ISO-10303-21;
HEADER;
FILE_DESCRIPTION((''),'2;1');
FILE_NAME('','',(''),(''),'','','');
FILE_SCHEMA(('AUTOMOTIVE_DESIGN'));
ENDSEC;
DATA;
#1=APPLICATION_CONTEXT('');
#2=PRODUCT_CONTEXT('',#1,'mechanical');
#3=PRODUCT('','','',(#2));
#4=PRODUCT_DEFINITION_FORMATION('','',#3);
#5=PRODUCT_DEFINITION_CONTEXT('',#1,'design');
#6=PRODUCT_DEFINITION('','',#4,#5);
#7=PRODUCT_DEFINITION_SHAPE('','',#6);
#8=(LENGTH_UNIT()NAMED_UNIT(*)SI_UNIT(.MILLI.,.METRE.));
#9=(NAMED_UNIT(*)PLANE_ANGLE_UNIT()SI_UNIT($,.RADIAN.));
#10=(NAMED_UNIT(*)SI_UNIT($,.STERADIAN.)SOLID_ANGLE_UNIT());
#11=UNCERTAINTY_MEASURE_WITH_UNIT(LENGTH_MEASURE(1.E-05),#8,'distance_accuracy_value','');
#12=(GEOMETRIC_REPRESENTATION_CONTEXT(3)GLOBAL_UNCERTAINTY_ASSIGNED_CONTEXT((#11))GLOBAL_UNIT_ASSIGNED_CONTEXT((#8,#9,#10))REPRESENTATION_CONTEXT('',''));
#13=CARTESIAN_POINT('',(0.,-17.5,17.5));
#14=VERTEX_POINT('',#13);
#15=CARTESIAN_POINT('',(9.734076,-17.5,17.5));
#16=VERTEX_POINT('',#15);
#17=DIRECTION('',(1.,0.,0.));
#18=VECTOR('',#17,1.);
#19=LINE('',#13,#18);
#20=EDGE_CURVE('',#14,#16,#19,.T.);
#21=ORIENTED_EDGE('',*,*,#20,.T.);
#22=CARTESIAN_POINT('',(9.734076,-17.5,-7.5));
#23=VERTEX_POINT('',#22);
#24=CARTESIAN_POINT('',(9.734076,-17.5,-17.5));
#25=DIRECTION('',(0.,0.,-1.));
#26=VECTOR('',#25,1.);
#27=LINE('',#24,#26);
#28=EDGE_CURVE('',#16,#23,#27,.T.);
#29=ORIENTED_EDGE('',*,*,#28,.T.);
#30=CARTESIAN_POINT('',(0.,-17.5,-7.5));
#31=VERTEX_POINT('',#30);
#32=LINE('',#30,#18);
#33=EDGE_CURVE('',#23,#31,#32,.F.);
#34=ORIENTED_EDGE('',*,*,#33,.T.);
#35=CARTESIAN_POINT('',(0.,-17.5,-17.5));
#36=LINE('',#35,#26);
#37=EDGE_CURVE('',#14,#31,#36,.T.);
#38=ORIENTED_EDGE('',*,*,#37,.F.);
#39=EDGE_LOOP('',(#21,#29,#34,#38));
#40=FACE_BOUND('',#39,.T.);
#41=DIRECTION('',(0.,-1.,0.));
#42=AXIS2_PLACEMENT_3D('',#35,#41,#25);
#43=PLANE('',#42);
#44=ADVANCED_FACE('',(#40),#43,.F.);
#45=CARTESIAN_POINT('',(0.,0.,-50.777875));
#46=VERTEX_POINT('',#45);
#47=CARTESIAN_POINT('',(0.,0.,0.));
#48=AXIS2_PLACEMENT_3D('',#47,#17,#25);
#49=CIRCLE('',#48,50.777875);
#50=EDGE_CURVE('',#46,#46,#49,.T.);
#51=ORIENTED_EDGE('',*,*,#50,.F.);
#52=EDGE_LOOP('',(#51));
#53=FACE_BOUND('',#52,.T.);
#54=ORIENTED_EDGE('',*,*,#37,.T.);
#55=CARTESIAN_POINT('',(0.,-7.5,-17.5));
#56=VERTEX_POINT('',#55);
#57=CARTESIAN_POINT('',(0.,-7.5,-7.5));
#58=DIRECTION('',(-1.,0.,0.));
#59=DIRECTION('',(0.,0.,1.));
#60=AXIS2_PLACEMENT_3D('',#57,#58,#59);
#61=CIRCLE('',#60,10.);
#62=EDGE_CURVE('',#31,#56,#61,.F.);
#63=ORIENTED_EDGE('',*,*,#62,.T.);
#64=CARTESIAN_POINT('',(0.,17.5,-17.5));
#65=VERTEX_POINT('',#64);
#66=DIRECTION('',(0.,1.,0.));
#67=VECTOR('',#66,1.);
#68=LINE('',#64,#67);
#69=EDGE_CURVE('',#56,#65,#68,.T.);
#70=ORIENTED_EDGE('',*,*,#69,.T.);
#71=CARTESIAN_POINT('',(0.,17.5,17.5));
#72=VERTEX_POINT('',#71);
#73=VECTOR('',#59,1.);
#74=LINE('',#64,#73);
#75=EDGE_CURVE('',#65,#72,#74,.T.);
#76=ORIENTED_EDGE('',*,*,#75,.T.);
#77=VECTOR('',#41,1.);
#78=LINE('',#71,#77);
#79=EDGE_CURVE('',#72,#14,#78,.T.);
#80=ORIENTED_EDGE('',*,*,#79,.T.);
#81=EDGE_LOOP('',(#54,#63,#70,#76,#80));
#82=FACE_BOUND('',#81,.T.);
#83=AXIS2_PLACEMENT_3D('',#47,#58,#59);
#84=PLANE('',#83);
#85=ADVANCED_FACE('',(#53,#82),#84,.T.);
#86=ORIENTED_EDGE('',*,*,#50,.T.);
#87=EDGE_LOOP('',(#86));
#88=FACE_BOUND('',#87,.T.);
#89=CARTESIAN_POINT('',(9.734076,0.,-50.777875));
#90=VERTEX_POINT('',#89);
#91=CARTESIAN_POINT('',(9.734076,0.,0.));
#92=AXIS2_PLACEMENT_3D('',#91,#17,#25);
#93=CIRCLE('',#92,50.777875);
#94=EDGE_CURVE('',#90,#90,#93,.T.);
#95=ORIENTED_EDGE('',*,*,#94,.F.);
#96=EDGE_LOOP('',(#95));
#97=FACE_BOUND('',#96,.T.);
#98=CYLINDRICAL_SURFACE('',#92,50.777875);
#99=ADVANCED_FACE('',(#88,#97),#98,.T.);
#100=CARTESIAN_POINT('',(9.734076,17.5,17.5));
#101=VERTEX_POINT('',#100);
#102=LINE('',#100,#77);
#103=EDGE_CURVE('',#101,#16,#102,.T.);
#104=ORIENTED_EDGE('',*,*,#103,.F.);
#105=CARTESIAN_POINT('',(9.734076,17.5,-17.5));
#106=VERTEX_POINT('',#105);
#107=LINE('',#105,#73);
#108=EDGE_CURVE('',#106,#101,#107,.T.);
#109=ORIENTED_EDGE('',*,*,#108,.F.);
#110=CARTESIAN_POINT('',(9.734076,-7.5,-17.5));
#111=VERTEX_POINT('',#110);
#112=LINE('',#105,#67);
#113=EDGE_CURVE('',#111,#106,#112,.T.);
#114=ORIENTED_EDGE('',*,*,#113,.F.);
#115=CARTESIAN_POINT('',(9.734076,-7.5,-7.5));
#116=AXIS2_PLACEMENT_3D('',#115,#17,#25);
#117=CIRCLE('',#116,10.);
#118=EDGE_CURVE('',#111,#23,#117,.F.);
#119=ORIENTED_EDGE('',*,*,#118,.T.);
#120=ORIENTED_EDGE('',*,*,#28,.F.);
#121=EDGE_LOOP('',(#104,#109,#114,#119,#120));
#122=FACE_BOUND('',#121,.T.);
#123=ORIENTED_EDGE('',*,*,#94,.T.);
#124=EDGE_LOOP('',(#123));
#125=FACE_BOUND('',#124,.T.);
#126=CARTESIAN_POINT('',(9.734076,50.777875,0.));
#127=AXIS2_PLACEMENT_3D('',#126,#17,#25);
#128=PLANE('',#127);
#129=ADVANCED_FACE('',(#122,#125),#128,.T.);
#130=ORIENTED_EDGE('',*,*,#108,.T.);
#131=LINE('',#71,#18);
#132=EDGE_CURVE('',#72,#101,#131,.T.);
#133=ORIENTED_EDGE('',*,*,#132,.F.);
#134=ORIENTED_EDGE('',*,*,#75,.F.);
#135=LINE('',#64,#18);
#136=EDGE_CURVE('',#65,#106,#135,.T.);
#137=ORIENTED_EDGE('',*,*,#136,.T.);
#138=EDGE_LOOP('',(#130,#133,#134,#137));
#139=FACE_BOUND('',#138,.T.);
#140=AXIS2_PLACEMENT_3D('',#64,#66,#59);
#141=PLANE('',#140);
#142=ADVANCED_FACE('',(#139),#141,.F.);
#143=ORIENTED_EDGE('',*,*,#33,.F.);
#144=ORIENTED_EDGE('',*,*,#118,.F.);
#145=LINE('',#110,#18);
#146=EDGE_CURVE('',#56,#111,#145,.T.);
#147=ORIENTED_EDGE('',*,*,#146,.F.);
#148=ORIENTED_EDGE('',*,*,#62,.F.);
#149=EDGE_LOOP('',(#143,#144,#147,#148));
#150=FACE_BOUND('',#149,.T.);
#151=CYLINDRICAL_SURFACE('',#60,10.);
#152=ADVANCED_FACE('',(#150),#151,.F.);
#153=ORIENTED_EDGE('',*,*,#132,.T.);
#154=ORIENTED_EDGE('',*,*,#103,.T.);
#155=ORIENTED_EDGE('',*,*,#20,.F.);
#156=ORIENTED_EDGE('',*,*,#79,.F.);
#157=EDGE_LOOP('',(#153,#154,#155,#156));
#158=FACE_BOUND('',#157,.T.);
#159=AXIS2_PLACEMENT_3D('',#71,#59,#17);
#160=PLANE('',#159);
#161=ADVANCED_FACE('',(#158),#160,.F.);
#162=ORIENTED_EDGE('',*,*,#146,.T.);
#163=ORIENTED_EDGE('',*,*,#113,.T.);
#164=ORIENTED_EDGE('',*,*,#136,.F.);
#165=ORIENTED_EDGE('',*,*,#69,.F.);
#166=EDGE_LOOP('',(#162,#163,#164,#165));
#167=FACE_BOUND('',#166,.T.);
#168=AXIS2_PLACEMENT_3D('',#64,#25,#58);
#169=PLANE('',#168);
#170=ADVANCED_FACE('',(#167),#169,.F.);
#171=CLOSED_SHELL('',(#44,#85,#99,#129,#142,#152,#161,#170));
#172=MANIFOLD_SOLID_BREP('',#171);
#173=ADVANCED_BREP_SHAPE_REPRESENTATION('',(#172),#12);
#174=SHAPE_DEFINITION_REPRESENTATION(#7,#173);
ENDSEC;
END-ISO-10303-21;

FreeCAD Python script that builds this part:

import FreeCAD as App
import Part
import Sketcher

V = App.Vector
Q = App.Units.Quantity


def edges_at(feature, points):
    """Names of the edges that pass closest to the given points."""
    edges = feature.Shape.Edges
    near = lambda p: min(range(len(edges)), key=lambda i: edges[i].distToShape(Part.Vertex(*p))[0])
    return sorted({f"Edge{near(p) + 1}" for p in points})

doc = App.newDocument("Part")
body = doc.addObject("PartDesign::Body", "Body")

# Sketch on XY plane
sketch1 = doc.addObject("Sketcher::SketchObject", "Sketch")
body.addObject(sketch1)
sketch1.AttachmentSupport = (doc.XY_Plane, [""])
sketch1.MapMode = "FlatFace"
sketch1.addGeometry([
    Part.LineSegment(V(0, 51, 0), V(0, 0, 0)),
    Part.LineSegment(V(0, 0, 0), V(10, 0, 0)),
    Part.LineSegment(V(10, 0, 0), V(10, 51, 0)),
    Part.LineSegment(V(10, 51, 0), V(0, 51, 0)),
], False)
sketch1.addConstraint([
    Sketcher.Constraint("Coincident", 0, 2, 1, 1),
    Sketcher.Constraint("Coincident", 1, 2, 2, 1),
    Sketcher.Constraint("Coincident", 2, 2, 3, 1),
    Sketcher.Constraint("Coincident", 3, 2, 0, 1),
    Sketcher.Constraint("Vertical", 0),
    Sketcher.Constraint("Horizontal", 1),
    Sketcher.Constraint("Vertical", 2),
    Sketcher.Constraint("Horizontal", 3),
    Sketcher.Constraint("Coincident", 0, 2, -1, 1),
    Sketcher.Constraint("DistanceX", 1, 1, 1, 2, Q("9.734076 mm")),
    Sketcher.Constraint("DistanceY", 0, 2, 0, 1, Q("50.777875 mm")),
])
revolution = doc.addObject("PartDesign::Revolution", "Revolution")
body.addObject(revolution)
revolution.Profile = sketch1
revolution.ReferenceAxis = (sketch1, ["H_Axis"])
revolution.Angle = 360

# Sketch on YZ plane
sketch2 = doc.addObject("Sketcher::SketchObject", "Sketch001")
body.addObject(sketch2)
sketch2.AttachmentSupport = (doc.YZ_Plane, [""])
sketch2.MapMode = "FlatFace"
sketch2.AttachmentOffset = App.Placement(V(0, 0, 9.734076), App.Rotation())
sketch2.addGeometry([
    Part.LineSegment(V(18, 18, 0), V(-18, 18, 0)),
    Part.LineSegment(V(-18, 18, 0), V(-18, -18, 0)),
    Part.LineSegment(V(-18, -18, 0), V(18, -18, 0)),
    Part.LineSegment(V(18, -18, 0), V(18, 18, 0)),
], False)
sketch2.addConstraint([
    Sketcher.Constraint("Coincident", 0, 2, 1, 1),
    Sketcher.Constraint("Coincident", 1, 2, 2, 1),
    Sketcher.Constraint("Coincident", 2, 2, 3, 1),
    Sketcher.Constraint("Coincident", 3, 2, 0, 1),
    Sketcher.Constraint("Horizontal", 0),
    Sketcher.Constraint("Vertical", 1),
    Sketcher.Constraint("Horizontal", 2),
    Sketcher.Constraint("Vertical", 3),
    Sketcher.Constraint("Symmetric", 0, 2, 2, 2, -1, 1),
    Sketcher.Constraint("Equal", 2, 1),
    Sketcher.Constraint("DistanceX", 0, 2, 0, 1, Q("35 mm")),
])
pocket1 = doc.addObject("PartDesign::Pocket", "Pocket")
body.addObject(pocket1)
pocket1.Profile = sketch2
pocket1.Type = "ThroughAll"
doc.recompute()

fillet = doc.addObject("PartDesign::Fillet", "Fillet")
body.addObject(fillet)
fillet.Base = (pocket1, edges_at(pocket1, [(4.867, -17.5, -17.5)]))
fillet.Radius = 10

doc.recompute()
